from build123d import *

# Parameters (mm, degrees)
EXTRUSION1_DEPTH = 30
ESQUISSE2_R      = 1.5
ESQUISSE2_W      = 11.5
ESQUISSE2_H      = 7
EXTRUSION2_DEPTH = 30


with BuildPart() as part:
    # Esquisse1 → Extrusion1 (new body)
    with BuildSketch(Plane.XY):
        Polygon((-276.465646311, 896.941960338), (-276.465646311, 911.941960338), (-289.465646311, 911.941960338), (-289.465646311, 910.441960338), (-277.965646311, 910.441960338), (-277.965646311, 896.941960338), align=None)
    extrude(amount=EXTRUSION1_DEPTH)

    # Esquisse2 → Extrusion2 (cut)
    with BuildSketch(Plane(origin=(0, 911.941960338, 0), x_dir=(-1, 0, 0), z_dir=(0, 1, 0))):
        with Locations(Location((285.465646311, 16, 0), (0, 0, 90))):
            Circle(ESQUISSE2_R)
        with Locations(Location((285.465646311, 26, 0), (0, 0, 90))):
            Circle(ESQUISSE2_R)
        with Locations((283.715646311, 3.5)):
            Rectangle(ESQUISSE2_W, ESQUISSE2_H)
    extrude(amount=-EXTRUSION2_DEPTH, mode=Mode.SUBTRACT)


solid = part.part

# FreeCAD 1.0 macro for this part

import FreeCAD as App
import Part
import Sketcher
from FreeCAD import Vector
Q = App.Units.Quantity


def add_polygon(sketch, points):
    """Adds a closed chain of lines whose ends are joined by coincident constraints."""
    first, n = sketch.GeometryCount, len(points)
    for a, b in zip(points, points[1:] + points[:1]):
        sketch.addGeometry(Part.LineSegment(App.Vector(*a, 0), App.Vector(*b, 0)), False)
    for i in range(n):
        sketch.addConstraint(Sketcher.Constraint("Coincident", first + i, 2, first + (i + 1) % n, 1))

doc = App.newDocument("Part")
body = doc.addObject("PartDesign::Body", "Body")

sketch1 = body.newObject("Sketcher::SketchObject", "Sketch")
sketch1.AttachmentSupport = (doc.getObject("XY_Plane"), [""])
sketch1.MapMode = "FlatFace"
add_polygon(sketch1, [(-276.5, 896.9), (-276.5, 911.9), (-289.5, 911.9), (-289.5, 910.4), (-278, 910.4), (-278, 896.9)])
sketch1.addConstraint([
    Sketcher.Constraint("Vertical", 0),
    Sketcher.Constraint("Horizontal", 1),
    Sketcher.Constraint("Vertical", 2),
    Sketcher.Constraint("Horizontal", 3),
    Sketcher.Constraint("Vertical", 4),
    Sketcher.Constraint("Horizontal", 5),
    Sketcher.Constraint("Equal", 5, 2),
    Sketcher.Constraint("DistanceX", 1, 2, 1, 1, Q("13 mm")),
    Sketcher.Constraint("DistanceY", 0, 1, 0, 2, Q("15 mm")),
    Sketcher.Constraint("DistanceX", 3, 1, 3, 2, Q("11.5 mm")),
    Sketcher.Constraint("DistanceY", -1, 1, 0, 2, Q("911.94196 mm")),
    Sketcher.Constraint("DistanceX", 0, 2, -1, 1, Q("276.465646 mm")),
])
pad1 = body.newObject("PartDesign::Pad", "Pad")
pad1.Profile = sketch1
pad1.Length = 30

sketch2 = body.newObject("Sketcher::SketchObject", "Sketch001")
sketch2.AttachmentSupport = (doc.getObject("XZ_Plane"), [""])
sketch2.MapMode = "FlatFace"
sketch2.AttachmentOffset = App.Placement(Vector(0, 0, -911.94196), App.Rotation())
sketch2.addGeometry(Part.Circle(Vector(-285.5, 16, 0), Vector(0, 0, 1), 1.5), False)
sketch2.addGeometry(Part.Circle(Vector(-285.5, 26, 0), Vector(0, 0, 1), 1.5), False)
add_polygon(sketch2, [(-278, 7), (-278, 0), (-289.5, 0), (-289.5, 7)])
sketch2.addConstraint([
    Sketcher.Constraint("Vertical", 2),
    Sketcher.Constraint("Horizontal", 3),
    Sketcher.Constraint("Vertical", 4),
    Sketcher.Constraint("Horizontal", 5),
    Sketcher.Constraint("Equal", 0, 1),
    Sketcher.Constraint("PointOnObject", 2, 2, -1),
    Sketcher.Constraint("Vertical", 0, 3, 1, 3),
    Sketcher.Constraint("Diameter", 0, Q("3 mm")),
    Sketcher.Constraint("DistanceY", 2, 2, 2, 1, Q("7 mm")),
    Sketcher.Constraint("DistanceX", 3, 2, 3, 1, Q("11.5 mm")),
    Sketcher.Constraint("DistanceY", -1, 1, 0, 3, Q("16 mm")),
    Sketcher.Constraint("DistanceY", -1, 1, 1, 3, Q("26 mm")),
    Sketcher.Constraint("DistanceX", 3, 2, 0, 3, Q("4 mm")),
    Sketcher.Constraint("DistanceX", 0, 3, -1, 1, Q("285.465646 mm")),
])
pocket1 = body.newObject("PartDesign::Pocket", "Pocket")
pocket1.Profile = sketch2
pocket1.Length = 30
pocket1.Reversed = True

doc.recompute()
